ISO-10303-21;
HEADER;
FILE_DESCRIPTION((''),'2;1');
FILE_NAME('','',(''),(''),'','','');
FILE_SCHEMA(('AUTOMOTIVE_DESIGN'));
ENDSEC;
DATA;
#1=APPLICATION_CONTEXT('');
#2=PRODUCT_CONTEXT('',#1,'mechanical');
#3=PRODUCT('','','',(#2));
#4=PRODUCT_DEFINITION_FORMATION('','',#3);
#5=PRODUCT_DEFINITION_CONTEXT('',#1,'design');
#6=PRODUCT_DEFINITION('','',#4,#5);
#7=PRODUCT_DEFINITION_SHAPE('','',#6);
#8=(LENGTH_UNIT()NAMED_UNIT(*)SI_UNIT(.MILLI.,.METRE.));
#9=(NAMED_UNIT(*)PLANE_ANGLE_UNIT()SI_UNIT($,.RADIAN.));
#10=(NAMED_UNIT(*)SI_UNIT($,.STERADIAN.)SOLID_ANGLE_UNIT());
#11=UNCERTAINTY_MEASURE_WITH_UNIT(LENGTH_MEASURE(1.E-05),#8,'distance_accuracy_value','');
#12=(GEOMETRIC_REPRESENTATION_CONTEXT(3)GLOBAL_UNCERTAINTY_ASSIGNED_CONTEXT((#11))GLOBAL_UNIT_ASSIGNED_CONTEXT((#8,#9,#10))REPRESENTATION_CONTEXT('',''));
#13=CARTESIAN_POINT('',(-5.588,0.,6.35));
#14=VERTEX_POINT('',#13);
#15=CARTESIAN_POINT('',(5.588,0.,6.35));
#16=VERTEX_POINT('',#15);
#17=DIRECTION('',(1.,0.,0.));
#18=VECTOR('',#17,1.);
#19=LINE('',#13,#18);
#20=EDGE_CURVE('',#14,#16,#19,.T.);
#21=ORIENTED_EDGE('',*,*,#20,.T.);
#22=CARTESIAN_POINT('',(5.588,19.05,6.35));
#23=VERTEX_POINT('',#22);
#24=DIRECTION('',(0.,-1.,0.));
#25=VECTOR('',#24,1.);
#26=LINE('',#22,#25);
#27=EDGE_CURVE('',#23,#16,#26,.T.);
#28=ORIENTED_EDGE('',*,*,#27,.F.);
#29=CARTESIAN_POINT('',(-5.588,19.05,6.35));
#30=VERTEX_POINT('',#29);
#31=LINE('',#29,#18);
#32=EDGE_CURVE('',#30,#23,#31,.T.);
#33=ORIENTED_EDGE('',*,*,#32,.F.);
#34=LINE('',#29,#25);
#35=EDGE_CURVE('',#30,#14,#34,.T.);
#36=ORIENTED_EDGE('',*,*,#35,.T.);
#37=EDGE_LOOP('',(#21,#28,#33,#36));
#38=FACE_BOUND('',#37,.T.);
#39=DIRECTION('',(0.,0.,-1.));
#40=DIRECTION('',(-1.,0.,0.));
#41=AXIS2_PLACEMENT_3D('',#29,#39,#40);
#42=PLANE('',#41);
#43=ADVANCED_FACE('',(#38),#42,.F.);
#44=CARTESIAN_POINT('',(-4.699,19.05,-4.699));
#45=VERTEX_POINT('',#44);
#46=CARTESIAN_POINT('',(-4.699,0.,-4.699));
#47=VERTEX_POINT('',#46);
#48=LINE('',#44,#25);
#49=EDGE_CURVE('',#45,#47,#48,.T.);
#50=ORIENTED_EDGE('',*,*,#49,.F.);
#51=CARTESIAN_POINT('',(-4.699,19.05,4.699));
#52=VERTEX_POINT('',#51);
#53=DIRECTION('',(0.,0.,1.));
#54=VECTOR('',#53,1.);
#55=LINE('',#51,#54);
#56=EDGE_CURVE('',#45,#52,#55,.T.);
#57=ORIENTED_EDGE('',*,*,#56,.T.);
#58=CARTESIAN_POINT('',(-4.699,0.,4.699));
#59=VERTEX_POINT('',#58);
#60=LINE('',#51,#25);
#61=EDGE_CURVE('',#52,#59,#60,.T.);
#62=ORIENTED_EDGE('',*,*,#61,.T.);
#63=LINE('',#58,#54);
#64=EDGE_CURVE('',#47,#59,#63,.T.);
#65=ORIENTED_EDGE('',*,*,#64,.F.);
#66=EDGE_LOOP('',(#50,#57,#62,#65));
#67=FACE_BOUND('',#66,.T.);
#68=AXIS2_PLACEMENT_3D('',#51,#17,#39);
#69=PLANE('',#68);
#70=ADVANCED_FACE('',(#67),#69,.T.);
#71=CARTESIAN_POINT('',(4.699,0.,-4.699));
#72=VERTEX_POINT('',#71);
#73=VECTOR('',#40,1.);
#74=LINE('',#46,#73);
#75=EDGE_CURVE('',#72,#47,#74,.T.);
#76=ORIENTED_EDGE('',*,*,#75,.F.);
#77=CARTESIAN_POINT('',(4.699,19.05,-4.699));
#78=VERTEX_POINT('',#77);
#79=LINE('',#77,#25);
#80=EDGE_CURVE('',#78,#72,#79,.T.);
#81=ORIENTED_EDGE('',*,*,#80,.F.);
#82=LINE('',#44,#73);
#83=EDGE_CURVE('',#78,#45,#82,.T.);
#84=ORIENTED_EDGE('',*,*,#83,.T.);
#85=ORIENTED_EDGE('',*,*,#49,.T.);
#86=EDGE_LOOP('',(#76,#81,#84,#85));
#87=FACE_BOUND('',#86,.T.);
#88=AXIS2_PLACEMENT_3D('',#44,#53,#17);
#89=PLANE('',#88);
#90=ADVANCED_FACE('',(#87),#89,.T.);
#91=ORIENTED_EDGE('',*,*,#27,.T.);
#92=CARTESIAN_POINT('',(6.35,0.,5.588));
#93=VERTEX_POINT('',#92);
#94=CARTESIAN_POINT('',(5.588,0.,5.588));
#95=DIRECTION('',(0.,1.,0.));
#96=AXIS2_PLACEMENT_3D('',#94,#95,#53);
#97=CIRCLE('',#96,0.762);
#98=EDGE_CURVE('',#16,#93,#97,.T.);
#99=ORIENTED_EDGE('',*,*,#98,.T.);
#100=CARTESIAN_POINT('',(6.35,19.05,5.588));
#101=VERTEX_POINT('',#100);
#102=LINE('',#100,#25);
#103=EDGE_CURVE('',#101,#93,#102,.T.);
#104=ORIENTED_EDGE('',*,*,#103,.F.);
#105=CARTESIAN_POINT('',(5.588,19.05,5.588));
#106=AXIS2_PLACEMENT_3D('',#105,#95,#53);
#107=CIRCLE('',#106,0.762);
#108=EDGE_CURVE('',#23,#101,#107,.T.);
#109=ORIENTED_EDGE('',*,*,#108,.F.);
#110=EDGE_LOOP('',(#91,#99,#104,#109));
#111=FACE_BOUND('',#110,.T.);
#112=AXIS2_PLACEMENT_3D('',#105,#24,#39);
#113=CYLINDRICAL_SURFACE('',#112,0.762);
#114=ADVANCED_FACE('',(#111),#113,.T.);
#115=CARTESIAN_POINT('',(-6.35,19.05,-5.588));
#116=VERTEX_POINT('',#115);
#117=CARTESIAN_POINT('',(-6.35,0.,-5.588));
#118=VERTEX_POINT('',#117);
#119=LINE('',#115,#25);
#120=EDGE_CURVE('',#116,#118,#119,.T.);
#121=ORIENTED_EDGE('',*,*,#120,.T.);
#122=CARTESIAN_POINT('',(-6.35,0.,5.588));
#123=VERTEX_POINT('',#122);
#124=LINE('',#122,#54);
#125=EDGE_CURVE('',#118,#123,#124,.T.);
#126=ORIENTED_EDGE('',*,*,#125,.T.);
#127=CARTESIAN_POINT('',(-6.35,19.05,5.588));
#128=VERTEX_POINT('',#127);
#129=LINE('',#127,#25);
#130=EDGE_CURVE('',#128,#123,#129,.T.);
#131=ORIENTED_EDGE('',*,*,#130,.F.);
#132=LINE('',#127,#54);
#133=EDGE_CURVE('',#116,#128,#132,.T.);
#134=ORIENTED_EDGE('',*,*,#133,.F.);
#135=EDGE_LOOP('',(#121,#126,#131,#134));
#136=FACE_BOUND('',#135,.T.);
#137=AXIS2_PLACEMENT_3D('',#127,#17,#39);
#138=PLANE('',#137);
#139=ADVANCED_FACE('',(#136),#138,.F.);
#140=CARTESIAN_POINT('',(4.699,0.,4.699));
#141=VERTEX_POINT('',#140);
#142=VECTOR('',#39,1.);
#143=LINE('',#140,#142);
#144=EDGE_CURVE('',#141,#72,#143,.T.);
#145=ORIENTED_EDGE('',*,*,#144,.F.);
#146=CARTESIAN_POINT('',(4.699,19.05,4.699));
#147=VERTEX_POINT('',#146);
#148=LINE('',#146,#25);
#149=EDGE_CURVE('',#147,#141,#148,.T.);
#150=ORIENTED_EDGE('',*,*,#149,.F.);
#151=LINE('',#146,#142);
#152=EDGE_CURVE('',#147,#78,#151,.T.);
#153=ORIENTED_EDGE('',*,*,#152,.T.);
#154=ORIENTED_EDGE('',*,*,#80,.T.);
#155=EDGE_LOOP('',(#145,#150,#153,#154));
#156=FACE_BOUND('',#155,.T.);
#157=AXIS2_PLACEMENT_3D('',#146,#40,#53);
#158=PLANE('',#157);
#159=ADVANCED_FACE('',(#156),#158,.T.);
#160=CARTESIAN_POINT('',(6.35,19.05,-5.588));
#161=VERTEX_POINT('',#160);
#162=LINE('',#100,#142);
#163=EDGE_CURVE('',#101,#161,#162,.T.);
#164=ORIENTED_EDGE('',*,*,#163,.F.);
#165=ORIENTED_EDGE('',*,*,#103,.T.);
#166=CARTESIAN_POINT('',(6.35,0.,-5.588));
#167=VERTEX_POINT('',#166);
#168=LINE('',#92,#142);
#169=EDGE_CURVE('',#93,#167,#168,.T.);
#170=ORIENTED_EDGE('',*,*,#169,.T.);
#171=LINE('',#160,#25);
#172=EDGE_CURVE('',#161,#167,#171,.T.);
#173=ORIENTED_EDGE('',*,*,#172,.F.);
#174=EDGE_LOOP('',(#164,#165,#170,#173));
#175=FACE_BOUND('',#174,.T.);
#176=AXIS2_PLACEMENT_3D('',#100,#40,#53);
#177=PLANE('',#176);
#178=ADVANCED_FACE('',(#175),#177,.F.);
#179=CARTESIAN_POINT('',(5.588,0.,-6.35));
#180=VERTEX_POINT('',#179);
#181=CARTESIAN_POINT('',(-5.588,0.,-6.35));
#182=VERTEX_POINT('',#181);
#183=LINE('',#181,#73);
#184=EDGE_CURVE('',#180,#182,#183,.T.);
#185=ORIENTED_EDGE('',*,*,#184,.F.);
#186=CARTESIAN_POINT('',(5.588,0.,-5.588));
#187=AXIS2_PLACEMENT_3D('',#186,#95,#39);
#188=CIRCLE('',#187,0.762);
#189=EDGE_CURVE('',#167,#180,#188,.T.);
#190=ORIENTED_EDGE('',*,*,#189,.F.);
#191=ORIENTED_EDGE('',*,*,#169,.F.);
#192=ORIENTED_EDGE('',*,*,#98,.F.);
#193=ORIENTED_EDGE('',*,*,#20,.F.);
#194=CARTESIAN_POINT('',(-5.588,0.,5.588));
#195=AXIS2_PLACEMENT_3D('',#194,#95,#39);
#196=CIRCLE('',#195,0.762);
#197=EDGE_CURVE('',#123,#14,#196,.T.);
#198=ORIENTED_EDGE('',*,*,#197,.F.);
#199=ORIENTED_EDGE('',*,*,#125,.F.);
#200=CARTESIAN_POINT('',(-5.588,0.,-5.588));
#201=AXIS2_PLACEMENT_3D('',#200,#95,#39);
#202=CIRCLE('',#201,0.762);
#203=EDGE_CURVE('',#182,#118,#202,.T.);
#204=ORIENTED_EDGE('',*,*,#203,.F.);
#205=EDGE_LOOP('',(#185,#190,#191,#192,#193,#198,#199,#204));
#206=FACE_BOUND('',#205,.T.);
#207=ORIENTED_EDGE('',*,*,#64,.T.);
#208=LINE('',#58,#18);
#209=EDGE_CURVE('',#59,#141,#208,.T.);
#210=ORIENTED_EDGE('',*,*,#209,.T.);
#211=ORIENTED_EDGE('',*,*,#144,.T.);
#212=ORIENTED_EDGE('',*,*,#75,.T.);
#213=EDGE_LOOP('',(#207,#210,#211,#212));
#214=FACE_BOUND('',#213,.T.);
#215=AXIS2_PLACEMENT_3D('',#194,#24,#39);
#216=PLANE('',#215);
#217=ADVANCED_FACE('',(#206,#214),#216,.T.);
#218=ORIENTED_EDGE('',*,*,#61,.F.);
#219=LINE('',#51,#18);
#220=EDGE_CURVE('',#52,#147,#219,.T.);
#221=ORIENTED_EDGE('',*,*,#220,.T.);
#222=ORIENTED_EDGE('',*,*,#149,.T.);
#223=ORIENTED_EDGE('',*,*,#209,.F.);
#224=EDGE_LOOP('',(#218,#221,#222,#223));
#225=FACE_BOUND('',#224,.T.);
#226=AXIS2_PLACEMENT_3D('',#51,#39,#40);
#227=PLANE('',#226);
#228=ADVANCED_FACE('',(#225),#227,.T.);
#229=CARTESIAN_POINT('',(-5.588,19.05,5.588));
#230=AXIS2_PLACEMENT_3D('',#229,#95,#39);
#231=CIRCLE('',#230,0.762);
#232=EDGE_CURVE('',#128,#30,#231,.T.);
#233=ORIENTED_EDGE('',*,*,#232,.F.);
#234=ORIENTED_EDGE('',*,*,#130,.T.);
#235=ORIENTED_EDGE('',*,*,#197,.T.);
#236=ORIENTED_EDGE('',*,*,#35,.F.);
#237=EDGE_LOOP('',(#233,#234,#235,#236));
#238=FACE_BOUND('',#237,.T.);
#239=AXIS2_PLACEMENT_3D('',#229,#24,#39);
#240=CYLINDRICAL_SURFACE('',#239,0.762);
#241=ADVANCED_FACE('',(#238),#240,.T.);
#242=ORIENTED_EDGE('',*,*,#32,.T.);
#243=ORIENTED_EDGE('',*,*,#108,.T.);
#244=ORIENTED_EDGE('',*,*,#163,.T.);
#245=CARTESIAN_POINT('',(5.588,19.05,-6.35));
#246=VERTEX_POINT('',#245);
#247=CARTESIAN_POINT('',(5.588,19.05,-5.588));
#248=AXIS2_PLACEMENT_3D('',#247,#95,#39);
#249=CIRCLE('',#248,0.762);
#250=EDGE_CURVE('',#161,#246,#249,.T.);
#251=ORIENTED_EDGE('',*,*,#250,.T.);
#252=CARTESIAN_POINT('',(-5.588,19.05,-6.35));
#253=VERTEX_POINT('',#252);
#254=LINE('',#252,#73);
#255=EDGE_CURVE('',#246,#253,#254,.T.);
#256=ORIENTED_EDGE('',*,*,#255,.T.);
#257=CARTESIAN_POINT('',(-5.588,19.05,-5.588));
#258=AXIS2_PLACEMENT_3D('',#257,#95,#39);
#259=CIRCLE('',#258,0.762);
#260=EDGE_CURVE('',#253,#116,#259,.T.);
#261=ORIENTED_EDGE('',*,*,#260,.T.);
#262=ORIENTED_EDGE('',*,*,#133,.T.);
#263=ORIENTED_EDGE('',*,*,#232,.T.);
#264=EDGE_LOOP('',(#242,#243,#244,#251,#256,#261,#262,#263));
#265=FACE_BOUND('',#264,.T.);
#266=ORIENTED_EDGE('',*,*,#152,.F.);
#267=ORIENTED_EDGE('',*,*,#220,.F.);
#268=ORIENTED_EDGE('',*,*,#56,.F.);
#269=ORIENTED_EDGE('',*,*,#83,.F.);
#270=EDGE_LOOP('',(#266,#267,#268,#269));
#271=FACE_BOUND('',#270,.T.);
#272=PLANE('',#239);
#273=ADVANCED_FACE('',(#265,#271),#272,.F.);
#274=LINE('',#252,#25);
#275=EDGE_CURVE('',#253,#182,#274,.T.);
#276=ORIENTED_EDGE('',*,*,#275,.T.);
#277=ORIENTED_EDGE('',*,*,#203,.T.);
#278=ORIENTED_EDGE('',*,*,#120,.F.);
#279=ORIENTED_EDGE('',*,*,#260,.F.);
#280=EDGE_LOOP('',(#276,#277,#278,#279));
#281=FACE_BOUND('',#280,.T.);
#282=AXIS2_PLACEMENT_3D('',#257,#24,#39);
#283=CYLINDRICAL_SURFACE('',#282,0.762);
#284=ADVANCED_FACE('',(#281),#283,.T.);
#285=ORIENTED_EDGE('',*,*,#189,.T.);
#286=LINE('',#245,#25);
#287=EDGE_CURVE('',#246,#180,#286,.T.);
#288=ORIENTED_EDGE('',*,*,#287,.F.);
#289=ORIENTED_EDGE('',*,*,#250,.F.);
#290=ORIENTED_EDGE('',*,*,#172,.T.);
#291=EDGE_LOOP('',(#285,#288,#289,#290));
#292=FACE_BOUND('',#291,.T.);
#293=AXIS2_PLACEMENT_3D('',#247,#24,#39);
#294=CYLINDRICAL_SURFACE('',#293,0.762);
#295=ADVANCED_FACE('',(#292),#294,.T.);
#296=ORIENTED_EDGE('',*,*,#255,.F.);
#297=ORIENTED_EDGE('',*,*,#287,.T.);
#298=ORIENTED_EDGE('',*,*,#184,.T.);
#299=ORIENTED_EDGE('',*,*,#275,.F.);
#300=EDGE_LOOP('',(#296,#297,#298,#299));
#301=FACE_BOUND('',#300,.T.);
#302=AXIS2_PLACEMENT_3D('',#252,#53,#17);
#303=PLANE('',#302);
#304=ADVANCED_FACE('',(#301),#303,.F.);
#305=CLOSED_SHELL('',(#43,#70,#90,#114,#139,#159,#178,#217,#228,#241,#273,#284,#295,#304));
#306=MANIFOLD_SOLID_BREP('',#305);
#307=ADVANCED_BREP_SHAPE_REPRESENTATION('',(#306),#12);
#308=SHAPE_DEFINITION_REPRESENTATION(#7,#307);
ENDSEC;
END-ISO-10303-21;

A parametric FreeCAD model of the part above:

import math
import FreeCAD as App
import Part
import Sketcher
from FreeCAD import Vector
Q = App.Units.Quantity


def add_polygon(sketch, points):
    """Adds a closed chain of lines whose ends are joined by coincident constraints."""
    first, n = sketch.GeometryCount, len(points)
    for a, b in zip(points, points[1:] + points[:1]):
        sketch.addGeometry(Part.LineSegment(App.Vector(*a, 0), App.Vector(*b, 0)), False)
    for i in range(n):
        sketch.addConstraint(Sketcher.Constraint("Coincident", first + i, 2, first + (i + 1) % n, 1))

doc = App.newDocument("Part")
body = doc.addObject("PartDesign::Body", "Body")

# Sketch on XZ plane
sketch1 = body.newObject("Sketcher::SketchObject", "Sketch")
sketch1.AttachmentSupport = (doc.getObject("XZ_Plane"), [""])
sketch1.MapMode = "FlatFace"
sketch1.addGeometry(Part.LineSegment(Vector(-5.6, 6.3, 0), Vector(5.6, 6.3, 0)), False)  # 0
sketch1.addGeometry(Part.ArcOfCircle(Part.Circle(Vector(5.6, 5.6, 0), Vector(0, 0, 1), 0.8), math.radians(0), math.radians(90)), False)  # 1
sketch1.addGeometry(Part.LineSegment(Vector(6.3, 5.6, 0), Vector(6.3, -5.6, 0)), False)  # 2
sketch1.addGeometry(Part.ArcOfCircle(Part.Circle(Vector(5.6, -5.6, 0), Vector(0, 0, 1), 0.8), math.radians(-90), math.radians(0)), False)  # 3
sketch1.addGeometry(Part.LineSegment(Vector(5.6, -6.3, 0), Vector(-5.6, -6.3, 0)), False)  # 4
sketch1.addGeometry(Part.ArcOfCircle(Part.Circle(Vector(-5.6, -5.6, 0), Vector(0, 0, 1), 0.8), math.radians(-180), math.radians(-90)), False)  # 5
sketch1.addGeometry(Part.LineSegment(Vector(-6.3, -5.6, 0), Vector(-6.3, 5.6, 0)), False)  # 6
sketch1.addGeometry(Part.ArcOfCircle(Part.Circle(Vector(-5.6, 5.6, 0), Vector(0, 0, 1), 0.8), math.radians(90), math.radians(180)), False)  # 7
add_polygon(sketch1, [(4.7, 4.7), (-4.7, 4.7), (-4.7, -4.7), (4.7, -4.7)])  # lines 8-11
sketch1.addConstraint([
    Sketcher.Constraint("Tangent", 0, 2, 1, 2),
    Sketcher.Constraint("Tangent", 1, 1, 2, 1),
    Sketcher.Constraint("Tangent", 2, 2, 3, 2),
    Sketcher.Constraint("Tangent", 3, 1, 4, 1),
    Sketcher.Constraint("Tangent", 4, 2, 5, 2),
    Sketcher.Constraint("Tangent", 5, 1, 6, 1),
    Sketcher.Constraint("Tangent", 6, 2, 7, 2),
    Sketcher.Constraint("Tangent", 7, 1, 0, 1),
    Sketcher.Constraint("Horizontal", 0),
    Sketcher.Constraint("Vertical", 2),
    Sketcher.Constraint("Horizontal", 4),
    Sketcher.Constraint("Vertical", 6),
    Sketcher.Constraint("Horizontal", 8),
    Sketcher.Constraint("Vertical", 9),
    Sketcher.Constraint("Horizontal", 10),
    Sketcher.Constraint("Vertical", 11),
    Sketcher.Constraint("Equal", 1, 3),
    Sketcher.Constraint("Equal", 3, 5),
    Sketcher.Constraint("Equal", 5, 7),
    Sketcher.Constraint("Symmetric", 1, 3, 5, 3, -1, 1),
    Sketcher.Constraint("Symmetric", 8, 2, 10, 2, -1, 1),
    Sketcher.Constraint("Equal", 4, 2),
    Sketcher.Constraint("Equal", 10, 9),
    Sketcher.Constraint("Radius", 1, Q("0.03 in")),
    Sketcher.Constraint("DistanceX", 0, 1, 0, 2, Q("0.44 in")),
    Sketcher.Constraint("DistanceX", 8, 2, 8, 1, Q("0.37 in")),
])
pad1 = body.newObject("PartDesign::Pad", "Pad")
pad1.Profile = sketch1
pad1.Length = Q("0.75 in")
pad1.Reversed = True

doc.recompute()
